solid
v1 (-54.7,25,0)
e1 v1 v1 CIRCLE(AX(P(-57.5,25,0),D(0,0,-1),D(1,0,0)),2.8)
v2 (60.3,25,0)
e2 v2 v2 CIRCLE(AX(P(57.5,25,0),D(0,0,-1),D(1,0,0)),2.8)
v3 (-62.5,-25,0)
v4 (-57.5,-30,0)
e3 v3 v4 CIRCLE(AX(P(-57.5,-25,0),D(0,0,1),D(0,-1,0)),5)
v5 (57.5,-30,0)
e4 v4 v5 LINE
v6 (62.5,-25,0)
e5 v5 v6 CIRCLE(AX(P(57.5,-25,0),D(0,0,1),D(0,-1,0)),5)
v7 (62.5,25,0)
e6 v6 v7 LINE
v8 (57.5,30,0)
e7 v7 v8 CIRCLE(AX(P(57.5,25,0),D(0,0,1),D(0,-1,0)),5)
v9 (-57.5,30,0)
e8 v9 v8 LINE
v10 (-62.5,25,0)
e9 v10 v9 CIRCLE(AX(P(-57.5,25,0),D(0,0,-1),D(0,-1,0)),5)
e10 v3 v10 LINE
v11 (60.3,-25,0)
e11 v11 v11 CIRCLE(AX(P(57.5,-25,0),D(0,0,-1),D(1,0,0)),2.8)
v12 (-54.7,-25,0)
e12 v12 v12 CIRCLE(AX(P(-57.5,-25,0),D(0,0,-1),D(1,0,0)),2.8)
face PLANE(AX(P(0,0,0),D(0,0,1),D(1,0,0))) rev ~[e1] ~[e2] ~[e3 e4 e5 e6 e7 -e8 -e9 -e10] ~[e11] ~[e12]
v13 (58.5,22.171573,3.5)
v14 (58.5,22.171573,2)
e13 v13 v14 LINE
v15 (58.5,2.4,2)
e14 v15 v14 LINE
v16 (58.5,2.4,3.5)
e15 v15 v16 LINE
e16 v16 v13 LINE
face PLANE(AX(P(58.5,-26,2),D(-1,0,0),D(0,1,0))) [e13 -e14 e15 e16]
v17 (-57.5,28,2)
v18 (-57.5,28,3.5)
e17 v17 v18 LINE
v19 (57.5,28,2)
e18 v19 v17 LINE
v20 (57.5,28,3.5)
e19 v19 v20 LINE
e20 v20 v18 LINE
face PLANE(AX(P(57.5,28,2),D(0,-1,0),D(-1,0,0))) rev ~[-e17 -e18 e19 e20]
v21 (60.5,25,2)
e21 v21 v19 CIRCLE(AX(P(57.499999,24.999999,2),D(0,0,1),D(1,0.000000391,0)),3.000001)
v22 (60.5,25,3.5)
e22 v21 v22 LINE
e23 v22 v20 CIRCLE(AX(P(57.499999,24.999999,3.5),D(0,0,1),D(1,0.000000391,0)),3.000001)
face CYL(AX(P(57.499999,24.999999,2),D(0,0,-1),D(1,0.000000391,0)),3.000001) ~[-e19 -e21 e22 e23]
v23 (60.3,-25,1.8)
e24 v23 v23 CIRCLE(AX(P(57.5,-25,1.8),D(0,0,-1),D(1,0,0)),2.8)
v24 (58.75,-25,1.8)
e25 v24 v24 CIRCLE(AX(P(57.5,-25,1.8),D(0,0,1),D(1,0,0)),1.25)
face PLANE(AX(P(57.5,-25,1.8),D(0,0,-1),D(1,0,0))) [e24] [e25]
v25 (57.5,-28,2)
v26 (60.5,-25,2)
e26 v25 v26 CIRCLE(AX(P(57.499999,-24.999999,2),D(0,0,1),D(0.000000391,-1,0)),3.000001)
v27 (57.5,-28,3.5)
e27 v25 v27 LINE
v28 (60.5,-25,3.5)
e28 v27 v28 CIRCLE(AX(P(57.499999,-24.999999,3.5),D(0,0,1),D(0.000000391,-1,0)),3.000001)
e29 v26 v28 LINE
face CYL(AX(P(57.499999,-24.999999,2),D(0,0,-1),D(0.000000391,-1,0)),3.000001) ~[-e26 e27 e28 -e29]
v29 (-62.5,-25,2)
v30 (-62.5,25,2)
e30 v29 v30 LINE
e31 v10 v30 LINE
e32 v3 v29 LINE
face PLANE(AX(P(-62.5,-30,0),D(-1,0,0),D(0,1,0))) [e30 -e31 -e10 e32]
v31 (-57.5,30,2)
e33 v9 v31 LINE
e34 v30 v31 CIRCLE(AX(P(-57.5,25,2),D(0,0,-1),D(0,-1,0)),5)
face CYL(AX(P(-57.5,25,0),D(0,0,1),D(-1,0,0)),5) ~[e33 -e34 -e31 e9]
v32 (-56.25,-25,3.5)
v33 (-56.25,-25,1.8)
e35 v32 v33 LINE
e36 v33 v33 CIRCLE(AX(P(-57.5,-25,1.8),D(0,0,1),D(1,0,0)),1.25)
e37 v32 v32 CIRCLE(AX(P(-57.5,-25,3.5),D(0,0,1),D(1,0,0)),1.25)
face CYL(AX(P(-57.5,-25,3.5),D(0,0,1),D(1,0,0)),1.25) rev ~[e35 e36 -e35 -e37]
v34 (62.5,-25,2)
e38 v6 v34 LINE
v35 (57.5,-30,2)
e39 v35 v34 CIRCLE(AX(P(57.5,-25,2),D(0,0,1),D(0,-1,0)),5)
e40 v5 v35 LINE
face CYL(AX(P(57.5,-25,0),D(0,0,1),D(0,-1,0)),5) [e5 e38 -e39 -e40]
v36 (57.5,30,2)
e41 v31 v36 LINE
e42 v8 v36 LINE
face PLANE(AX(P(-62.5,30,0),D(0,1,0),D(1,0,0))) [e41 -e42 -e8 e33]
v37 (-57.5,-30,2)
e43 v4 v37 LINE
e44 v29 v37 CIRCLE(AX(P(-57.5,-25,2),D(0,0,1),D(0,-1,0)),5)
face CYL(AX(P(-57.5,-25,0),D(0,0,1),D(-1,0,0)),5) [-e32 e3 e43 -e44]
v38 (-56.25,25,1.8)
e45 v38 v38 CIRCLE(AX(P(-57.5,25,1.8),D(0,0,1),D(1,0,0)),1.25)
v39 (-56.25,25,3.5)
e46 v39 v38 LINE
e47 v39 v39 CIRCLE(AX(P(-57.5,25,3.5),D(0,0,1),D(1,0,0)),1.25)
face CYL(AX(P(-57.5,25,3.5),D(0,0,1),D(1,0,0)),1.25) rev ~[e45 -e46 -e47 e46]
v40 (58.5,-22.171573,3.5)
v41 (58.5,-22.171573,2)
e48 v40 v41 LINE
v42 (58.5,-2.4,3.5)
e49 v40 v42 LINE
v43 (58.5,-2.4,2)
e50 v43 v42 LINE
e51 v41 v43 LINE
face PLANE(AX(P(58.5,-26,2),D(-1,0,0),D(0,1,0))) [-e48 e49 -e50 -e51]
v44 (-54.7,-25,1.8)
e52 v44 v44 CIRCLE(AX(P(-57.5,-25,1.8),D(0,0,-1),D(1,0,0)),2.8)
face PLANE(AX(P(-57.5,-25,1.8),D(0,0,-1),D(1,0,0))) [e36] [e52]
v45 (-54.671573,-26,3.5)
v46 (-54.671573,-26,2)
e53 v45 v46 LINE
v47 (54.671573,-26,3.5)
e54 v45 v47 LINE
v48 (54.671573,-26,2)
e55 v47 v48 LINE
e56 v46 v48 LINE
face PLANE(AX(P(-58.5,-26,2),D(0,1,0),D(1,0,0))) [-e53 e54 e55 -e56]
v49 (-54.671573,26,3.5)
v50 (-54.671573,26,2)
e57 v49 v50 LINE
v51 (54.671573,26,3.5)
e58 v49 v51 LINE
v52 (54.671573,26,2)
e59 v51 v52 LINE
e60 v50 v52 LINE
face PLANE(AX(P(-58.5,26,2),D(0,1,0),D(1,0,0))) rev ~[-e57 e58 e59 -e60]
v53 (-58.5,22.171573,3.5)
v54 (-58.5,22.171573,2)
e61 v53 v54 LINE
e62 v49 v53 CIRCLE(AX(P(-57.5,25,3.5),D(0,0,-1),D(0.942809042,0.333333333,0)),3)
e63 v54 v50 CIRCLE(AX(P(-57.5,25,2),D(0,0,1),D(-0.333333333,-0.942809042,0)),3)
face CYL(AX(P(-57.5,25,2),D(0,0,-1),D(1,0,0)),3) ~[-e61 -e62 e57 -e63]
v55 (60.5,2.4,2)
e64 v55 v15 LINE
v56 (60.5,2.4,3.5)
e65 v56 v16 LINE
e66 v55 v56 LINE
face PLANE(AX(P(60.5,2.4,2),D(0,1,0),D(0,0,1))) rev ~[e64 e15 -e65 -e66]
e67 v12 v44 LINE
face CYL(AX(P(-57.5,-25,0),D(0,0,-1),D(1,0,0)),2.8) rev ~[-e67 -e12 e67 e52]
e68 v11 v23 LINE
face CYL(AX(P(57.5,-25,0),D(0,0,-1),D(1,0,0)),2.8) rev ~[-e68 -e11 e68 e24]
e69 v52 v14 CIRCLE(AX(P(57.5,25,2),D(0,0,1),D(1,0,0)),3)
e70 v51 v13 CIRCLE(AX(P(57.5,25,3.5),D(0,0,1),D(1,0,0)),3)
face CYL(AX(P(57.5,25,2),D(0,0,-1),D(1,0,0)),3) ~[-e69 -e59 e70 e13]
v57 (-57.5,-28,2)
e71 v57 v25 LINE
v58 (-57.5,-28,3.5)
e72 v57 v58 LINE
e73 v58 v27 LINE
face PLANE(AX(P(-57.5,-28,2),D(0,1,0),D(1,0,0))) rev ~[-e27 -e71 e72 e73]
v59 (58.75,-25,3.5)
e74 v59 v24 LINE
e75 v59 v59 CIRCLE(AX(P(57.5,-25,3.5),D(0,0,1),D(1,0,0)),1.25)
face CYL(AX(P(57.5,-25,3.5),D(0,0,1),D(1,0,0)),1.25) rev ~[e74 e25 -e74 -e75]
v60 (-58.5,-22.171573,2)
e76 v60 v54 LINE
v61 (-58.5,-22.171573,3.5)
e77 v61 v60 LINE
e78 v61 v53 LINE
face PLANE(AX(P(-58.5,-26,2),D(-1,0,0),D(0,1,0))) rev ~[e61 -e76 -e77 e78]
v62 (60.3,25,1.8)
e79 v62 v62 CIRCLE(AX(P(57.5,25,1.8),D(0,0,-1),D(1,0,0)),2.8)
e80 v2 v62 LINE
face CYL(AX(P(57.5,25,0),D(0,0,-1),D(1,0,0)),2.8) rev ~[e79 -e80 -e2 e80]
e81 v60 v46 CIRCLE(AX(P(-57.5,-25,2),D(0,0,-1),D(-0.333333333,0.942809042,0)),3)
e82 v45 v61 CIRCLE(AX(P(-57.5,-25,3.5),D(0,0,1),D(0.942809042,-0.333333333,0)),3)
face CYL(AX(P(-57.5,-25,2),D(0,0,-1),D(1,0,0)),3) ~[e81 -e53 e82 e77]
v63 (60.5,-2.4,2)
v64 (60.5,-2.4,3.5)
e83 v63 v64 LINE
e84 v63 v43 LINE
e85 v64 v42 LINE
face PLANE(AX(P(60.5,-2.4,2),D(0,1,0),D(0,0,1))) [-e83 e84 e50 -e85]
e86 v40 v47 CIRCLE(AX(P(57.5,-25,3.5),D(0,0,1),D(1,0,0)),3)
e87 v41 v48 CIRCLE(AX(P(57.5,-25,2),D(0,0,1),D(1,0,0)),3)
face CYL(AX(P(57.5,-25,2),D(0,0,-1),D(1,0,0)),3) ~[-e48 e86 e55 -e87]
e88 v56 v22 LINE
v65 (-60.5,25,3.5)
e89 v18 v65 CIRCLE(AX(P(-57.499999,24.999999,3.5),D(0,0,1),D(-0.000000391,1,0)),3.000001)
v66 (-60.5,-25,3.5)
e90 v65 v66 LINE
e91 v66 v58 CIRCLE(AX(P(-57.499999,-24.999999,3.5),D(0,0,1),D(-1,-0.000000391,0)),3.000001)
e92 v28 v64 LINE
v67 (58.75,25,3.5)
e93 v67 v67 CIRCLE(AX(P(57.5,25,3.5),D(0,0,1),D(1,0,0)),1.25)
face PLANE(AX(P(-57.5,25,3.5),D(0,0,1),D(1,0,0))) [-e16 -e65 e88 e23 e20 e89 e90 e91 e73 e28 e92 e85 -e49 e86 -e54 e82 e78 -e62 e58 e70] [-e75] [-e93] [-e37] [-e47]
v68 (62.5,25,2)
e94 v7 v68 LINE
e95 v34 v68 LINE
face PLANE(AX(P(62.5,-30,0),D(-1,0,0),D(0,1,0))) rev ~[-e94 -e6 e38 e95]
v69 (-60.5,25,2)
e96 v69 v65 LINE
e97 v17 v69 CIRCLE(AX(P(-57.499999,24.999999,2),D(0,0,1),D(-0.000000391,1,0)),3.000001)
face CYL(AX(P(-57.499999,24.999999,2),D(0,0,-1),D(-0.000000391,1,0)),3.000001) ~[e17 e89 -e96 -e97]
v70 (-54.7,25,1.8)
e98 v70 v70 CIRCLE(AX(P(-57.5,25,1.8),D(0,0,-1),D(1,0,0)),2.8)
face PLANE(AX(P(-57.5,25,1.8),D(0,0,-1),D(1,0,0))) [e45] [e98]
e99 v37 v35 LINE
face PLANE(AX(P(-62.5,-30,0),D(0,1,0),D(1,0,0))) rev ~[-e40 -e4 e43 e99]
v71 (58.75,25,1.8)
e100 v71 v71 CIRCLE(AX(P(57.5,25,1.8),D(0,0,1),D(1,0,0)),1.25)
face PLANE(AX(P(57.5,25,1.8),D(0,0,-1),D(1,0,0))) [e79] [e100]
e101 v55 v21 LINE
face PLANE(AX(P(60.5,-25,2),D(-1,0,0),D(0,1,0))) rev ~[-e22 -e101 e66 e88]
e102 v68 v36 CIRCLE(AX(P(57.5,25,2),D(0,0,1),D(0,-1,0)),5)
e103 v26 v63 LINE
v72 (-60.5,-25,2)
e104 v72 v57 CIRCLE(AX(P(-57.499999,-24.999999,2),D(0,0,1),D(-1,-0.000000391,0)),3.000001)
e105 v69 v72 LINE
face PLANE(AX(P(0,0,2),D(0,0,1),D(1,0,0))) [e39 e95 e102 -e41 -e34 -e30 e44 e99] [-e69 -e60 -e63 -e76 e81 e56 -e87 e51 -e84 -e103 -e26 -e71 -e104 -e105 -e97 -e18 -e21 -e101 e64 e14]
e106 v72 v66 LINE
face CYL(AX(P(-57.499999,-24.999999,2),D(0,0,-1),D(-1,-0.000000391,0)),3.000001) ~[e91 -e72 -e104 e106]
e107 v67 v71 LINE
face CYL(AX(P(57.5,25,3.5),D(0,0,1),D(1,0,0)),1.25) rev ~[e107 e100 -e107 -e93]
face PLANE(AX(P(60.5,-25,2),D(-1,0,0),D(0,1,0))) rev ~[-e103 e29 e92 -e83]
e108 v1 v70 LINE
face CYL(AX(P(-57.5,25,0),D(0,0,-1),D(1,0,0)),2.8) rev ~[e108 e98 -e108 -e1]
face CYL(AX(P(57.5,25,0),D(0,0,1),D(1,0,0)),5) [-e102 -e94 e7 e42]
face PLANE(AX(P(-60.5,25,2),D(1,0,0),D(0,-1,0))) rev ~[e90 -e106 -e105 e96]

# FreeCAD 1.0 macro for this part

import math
import FreeCAD as App
import Part
import Sketcher
from FreeCAD import Vector
Q = App.Units.Quantity


def edges_at(feature, points):
    """Names of the edges that pass closest to the given points."""
    edges = feature.Shape.Edges
    near = lambda p: min(range(len(edges)), key=lambda i: edges[i].distToShape(Part.Vertex(*p))[0])
    return sorted({f"Edge{near(p) + 1}" for p in points})


def faces_at(feature, points):
    """Names of the faces that lie closest to the given points."""
    faces = feature.Shape.Faces
    near = lambda p: min(range(len(faces)), key=lambda i: faces[i].distToShape(Part.Vertex(*p))[0])
    return sorted({f"Face{near(p) + 1}" for p in points})

doc = App.newDocument("Part")
params = doc.addObject("Spreadsheet::Sheet", "Params")
for row, (alias, value) in enumerate([
    ("sketch1_width", "125 mm"),
    ("sketch1_height", "60 mm"),
    ("pad1_length", "2 mm"),
    ("thickness_wall", "2 mm"),
    ("fillet_radius", "5 mm"),
    ("sketch2_diameter", "2.5 mm"),
    ("pocket1_length", "10 mm"),
    ("sketch3_radius", "3.000001 mm"),
    ("sketch3_width", "115 mm"),
    ("sketch3_width2", "117 mm"),
    ("sketch3_height", "50 mm"),
    ("sketch3_height2", "52 mm"),
    ("pad2_length", "1.5 mm"),
    ("sketch4_diameter", "6 mm"),
    ("pad3_length", "1.5 mm"),
    ("sketch5_diameter", "2.5 mm"),
    ("sketch6_diameter", "5.6 mm"),
    ("pocket3_length", "1.8 mm"),
    ("sketch7_width", "4.8 mm"),
    ("sketch7_height", "1.5 mm"),
    ("pocket4_length", "2 mm"),
], start=1):
    params.set(f"A{row}", alias)
    params.set(f"B{row}", "=" + value)
    params.setAlias(f"B{row}", alias)

body = doc.addObject("PartDesign::Body", "Body")

# Sketch on XY plane
sketch1 = doc.addObject("Sketcher::SketchObject", "Sketch")
body.addObject(sketch1)
sketch1.AttachmentSupport = (doc.XY_Plane, [""])
sketch1.MapMode = "FlatFace"
sketch1.addGeometry([
    Part.LineSegment(Vector(-62, 30, 0), Vector(-62, -30, 0)),
    Part.LineSegment(Vector(-62, -30, 0), Vector(62, -30, 0)),
    Part.LineSegment(Vector(62, -30, 0), Vector(62, 30, 0)),
    Part.LineSegment(Vector(62, 30, 0), Vector(-62, 30, 0)),
], False)
sketch1.addConstraint([
    Sketcher.Constraint("Coincident", 0, 2, 1, 1),
    Sketcher.Constraint("Coincident", 1, 2, 2, 1),
    Sketcher.Constraint("Coincident", 2, 2, 3, 1),
    Sketcher.Constraint("Coincident", 3, 2, 0, 1),
    Sketcher.Constraint("Vertical", 0),
    Sketcher.Constraint("Horizontal", 1),
    Sketcher.Constraint("Vertical", 2),
    Sketcher.Constraint("Horizontal", 3),
    Sketcher.Constraint("Symmetric", 0, 2, 2, 2, -1, 1),
    Sketcher.Constraint("DistanceX", 1, 1, 1, 2, Q("125 mm")),
    Sketcher.Constraint("DistanceY", 0, 2, 0, 1, Q("60 mm")),
])
sketch1.setExpression("Constraints[9]", "Params.sketch1_width")
sketch1.setExpression("Constraints[10]", "Params.sketch1_height")
pad1 = doc.addObject("PartDesign::Pad", "Pad")
body.addObject(pad1)
pad1.Profile = sketch1
pad1.setExpression("Length", "Params.pad1_length")
doc.recompute()

thickness = doc.addObject("PartDesign::Thickness", "Thickness")
body.addObject(thickness)
thickness.Base = (pad1, faces_at(pad1, [(0, 0, 2)]))
thickness.setExpression("Value", "Params.thickness_wall")
thickness.Reversed = True
thickness.Join = "Arc"
doc.recompute()

fillet = doc.addObject("PartDesign::Fillet", "Fillet")
body.addObject(fillet)
fillet.Base = (thickness, edges_at(thickness, [
    (62.5, -30, 1),
    (62.5, 30, 1),
    (-62.5, 30, 1),
    (-62.5, -30, 1),
]))
fillet.setExpression("Radius", "Params.fillet_radius")

# Sketch on XY plane
sketch2 = doc.addObject("Sketcher::SketchObject", "Sketch001")
body.addObject(sketch2)
sketch2.AttachmentSupport = (doc.XY_Plane, [""])
sketch2.MapMode = "FlatFace"
sketch2.AttachmentOffset = App.Placement(Vector(0, 0, 2), App.Rotation())
sketch2.addGeometry([
    Part.Circle(Vector(-57.5, 25, 0), Vector(0, 0, 1), 1.2),
    Part.Circle(Vector(-57.5, -25, 0), Vector(0, 0, 1), 1.2),
    Part.Circle(Vector(57.5, 25, 0), Vector(0, 0, 1), 1.2),
    Part.Circle(Vector(57.5, -25, 0), Vector(0, 0, 1), 1.2),
], False)
sketch2.addConstraint([
    Sketcher.Constraint("Equal", 0, 1),
    Sketcher.Constraint("Equal", 1, 2),
    Sketcher.Constraint("Equal", 2, 3),
    Sketcher.Constraint("Symmetric", 1, 3, 2, 3, -1, 1),
    Sketcher.Constraint("Symmetric", 0, 3, 3, 3, -1, 1),
    Sketcher.Constraint("Symmetric", 0, 3, 2, 3, -2),
    Sketcher.Constraint("Diameter", 0, Q("2.5 mm")),
    Sketcher.Constraint("DistanceY", -1, 1, 0, 3, Q("25 mm")),
    Sketcher.Constraint("DistanceX", 0, 3, 2, 3, Q("115 mm")),
])
sketch2.setExpression("Constraints[6]", "Params.sketch2_diameter")
pocket1 = doc.addObject("PartDesign::Pocket", "Pocket")
body.addObject(pocket1)
pocket1.Profile = sketch2
pocket1.setExpression("Length", "Params.pocket1_length")
pocket1.Reversed = True

# Sketch on XY plane
sketch3 = doc.addObject("Sketcher::SketchObject", "Sketch002")
body.addObject(sketch3)
sketch3.AttachmentSupport = (doc.XY_Plane, [""])
sketch3.MapMode = "FlatFace"
sketch3.AttachmentOffset = App.Placement(Vector(0, 0, 2), App.Rotation())
sketch3.addGeometry([
    Part.ArcOfCircle(Part.Circle(Vector(57.5, 25, 0), Vector(0, 0, 1), 3), math.radians(0), math.radians(90)),  # 0
    Part.LineSegment(Vector(57.5, 28, 0), Vector(-57.5, 28, 0)),  # 1
    Part.ArcOfCircle(Part.Circle(Vector(-57.5, 25, 0), Vector(0, 0, 1), 3), math.radians(90), math.radians(180)),  # 2
    Part.LineSegment(Vector(-60.5, 25, 0), Vector(-60.5, -25, 0)),  # 3
    Part.ArcOfCircle(Part.Circle(Vector(-57.5, -25, 0), Vector(0, 0, 1), 3), math.radians(-180), math.radians(-90)),  # 4
    Part.LineSegment(Vector(-57.5, -28, 0), Vector(57.5, -28, 0)),  # 5
    Part.ArcOfCircle(Part.Circle(Vector(57.5, -25, 0), Vector(0, 0, 1), 3), math.radians(-90), math.radians(0)),  # 6
    Part.LineSegment(Vector(60.5, -25, 0), Vector(60.5, 25, 0)),  # 7
    Part.LineSegment(Vector(58.5, -26, 0), Vector(-58.5, -26, 0)),  # 8
    Part.LineSegment(Vector(-58.5, -26, 0), Vector(-58.5, 26, 0)),  # 9
    Part.LineSegment(Vector(-58.5, 26, 0), Vector(58.5, 26, 0)),  # 10
    Part.LineSegment(Vector(58.5, 26, 0), Vector(58.5, -26, 0)),  # 11
], False)
sketch3.addConstraint([
    Sketcher.Constraint("Tangent", 0, 2, 1, 1),
    Sketcher.Constraint("Tangent", 1, 2, 2, 1),
    Sketcher.Constraint("Tangent", 2, 2, 3, 1),
    Sketcher.Constraint("Tangent", 3, 2, 4, 1),
    Sketcher.Constraint("Tangent", 4, 2, 5, 1),
    Sketcher.Constraint("Tangent", 5, 2, 6, 1),
    Sketcher.Constraint("Tangent", 6, 2, 7, 1),
    Sketcher.Constraint("Tangent", 7, 2, 0, 1),
    Sketcher.Constraint("Coincident", 8, 2, 9, 1),
    Sketcher.Constraint("Coincident", 9, 2, 10, 1),
    Sketcher.Constraint("Coincident", 10, 2, 11, 1),
    Sketcher.Constraint("Coincident", 11, 2, 8, 1),
    Sketcher.Constraint("Horizontal", 1),
    Sketcher.Constraint("Vertical", 3),
    Sketcher.Constraint("Horizontal", 5),
    Sketcher.Constraint("Vertical", 7),
    Sketcher.Constraint("Horizontal", 8),
    Sketcher.Constraint("Vertical", 9),
    Sketcher.Constraint("Horizontal", 10),
    Sketcher.Constraint("Vertical", 11),
    Sketcher.Constraint("Equal", 0, 2),
    Sketcher.Constraint("Equal", 2, 4),
    Sketcher.Constraint("Equal", 4, 6),
    Sketcher.Constraint("Symmetric", 0, 3, 4, 3, -1, 1),
    Sketcher.Constraint("Symmetric", 8, 2, 10, 2, -1, 1),
    Sketcher.Constraint("Radius", 0, Q("3.000001 mm")),
    Sketcher.Constraint("DistanceX", 1, 2, 1, 1, Q("115 mm")),
    Sketcher.Constraint("DistanceX", 8, 2, 8, 1, Q("117 mm")),
    Sketcher.Constraint("DistanceY", 3, 2, 3, 1, Q("50 mm")),
    Sketcher.Constraint("DistanceY", 9, 1, 9, 2, Q("52 mm")),
])
sketch3.setExpression("Constraints[25]", "Params.sketch3_radius")
sketch3.setExpression("Constraints[26]", "Params.sketch3_width")
sketch3.setExpression("Constraints[27]", "Params.sketch3_width2")
sketch3.setExpression("Constraints[28]", "Params.sketch3_height")
sketch3.setExpression("Constraints[29]", "Params.sketch3_height2")
pad2 = doc.addObject("PartDesign::Pad", "Pad001")
body.addObject(pad2)
pad2.Profile = sketch3
pad2.setExpression("Length", "Params.pad2_length")

# Sketch on XY plane
sketch4 = doc.addObject("Sketcher::SketchObject", "Sketch003")
body.addObject(sketch4)
sketch4.AttachmentSupport = (doc.XY_Plane, [""])
sketch4.MapMode = "FlatFace"
sketch4.AttachmentOffset = App.Placement(Vector(0, 0, 2), App.Rotation())
sketch4.addGeometry([
    Part.Circle(Vector(-57.5, 25, 0), Vector(0, 0, 1), 3),
    Part.Circle(Vector(-57.5, -25, 0), Vector(0, 0, 1), 3),
    Part.Circle(Vector(57.5, -25, 0), Vector(0, 0, 1), 3),
    Part.Circle(Vector(57.5, 25, 0), Vector(0, 0, 1), 3),
], False)
sketch4.addConstraint([
    Sketcher.Constraint("Equal", 0, 1),
    Sketcher.Constraint("Equal", 1, 2),
    Sketcher.Constraint("Equal", 2, 3),
    Sketcher.Constraint("Symmetric", 0, 3, 2, 3, -1, 1),
    Sketcher.Constraint("Symmetric", 1, 3, 3, 3, -1, 1),
    Sketcher.Constraint("Symmetric", 1, 3, 2, 3, -2),
    Sketcher.Constraint("Diameter", 0, Q("6 mm")),
    Sketcher.Constraint("DistanceY", -1, 1, 0, 3, Q("25 mm")),
    Sketcher.Constraint("DistanceX", 1, 3, 2, 3, Q("115 mm")),
])
sketch4.setExpression("Constraints[6]", "Params.sketch4_diameter")
pad3 = doc.addObject("PartDesign::Pad", "Pad002")
body.addObject(pad3)
pad3.Profile = sketch4
pad3.setExpression("Length", "Params.pad3_length")

# Sketch on XY plane
sketch5 = doc.addObject("Sketcher::SketchObject", "Sketch004")
body.addObject(sketch5)
sketch5.AttachmentSupport = (doc.XY_Plane, [""])
sketch5.MapMode = "FlatFace"
sketch5.AttachmentOffset = App.Placement(Vector(0, 0, 3.5), App.Rotation())
sketch5.addGeometry([
    Part.Circle(Vector(57.5, -25, 0), Vector(0, 0, 1), 1.2),
    Part.Circle(Vector(57.5, 25, 0), Vector(0, 0, 1), 1.2),
    Part.Circle(Vector(-57.5, 25, 0), Vector(0, 0, 1), 1.2),
    Part.Circle(Vector(-57.5, -25, 0), Vector(0, 0, 1), 1.2),
], False)
sketch5.addConstraint([
    Sketcher.Constraint("Equal", 0, 1),
    Sketcher.Constraint("Equal", 1, 2),
    Sketcher.Constraint("Equal", 2, 3),
    Sketcher.Constraint("Symmetric", 0, 3, 2, 3, -1, 1),
    Sketcher.Constraint("Symmetric", 1, 3, 3, 3, -1, 1),
    Sketcher.Constraint("Symmetric", 1, 3, 2, 3, -2),
    Sketcher.Constraint("Diameter", 0, Q("2.5 mm")),
    Sketcher.Constraint("DistanceY", 0, 3, -1, 1, Q("25 mm")),
    Sketcher.Constraint("DistanceX", 2, 3, 1, 3, Q("115 mm")),
])
sketch5.setExpression("Constraints[6]", "Params.sketch5_diameter")
pocket2 = doc.addObject("PartDesign::Pocket", "Pocket001")
body.addObject(pocket2)
pocket2.Profile = sketch5
pocket2.Type = "ThroughAll"

# Sketch on XY plane
sketch6 = doc.addObject("Sketcher::SketchObject", "Sketch005")
body.addObject(sketch6)
sketch6.AttachmentSupport = (doc.XY_Plane, [""])
sketch6.MapMode = "FlatFace"
sketch6.addGeometry([
    Part.Circle(Vector(-57.5, -25, 0), Vector(0, 0, 1), 2.8),
    Part.Circle(Vector(57.5, -25, 0), Vector(0, 0, 1), 2.8),
    Part.Circle(Vector(-57.5, 25, 0), Vector(0, 0, 1), 2.8),
    Part.Circle(Vector(57.5, 25, 0), Vector(0, 0, 1), 2.8),
], False)
sketch6.addConstraint([
    Sketcher.Constraint("Equal", 0, 1),
    Sketcher.Constraint("Equal", 1, 2),
    Sketcher.Constraint("Equal", 2, 3),
    Sketcher.Constraint("Symmetric", 1, 3, 2, 3, -1, 1),
    Sketcher.Constraint("Symmetric", 0, 3, 3, 3, -1, 1),
    Sketcher.Constraint("Symmetric", 0, 3, 1, 3, -2),
    Sketcher.Constraint("Diameter", 0, Q("5.6 mm")),
    Sketcher.Constraint("DistanceY", 0, 3, -1, 1, Q("25 mm")),
    Sketcher.Constraint("DistanceX", 0, 3, 1, 3, Q("115 mm")),
])
sketch6.setExpression("Constraints[6]", "Params.sketch6_diameter")
pocket3 = doc.addObject("PartDesign::Pocket", "Pocket002")
body.addObject(pocket3)
pocket3.Profile = sketch6
pocket3.setExpression("Length", "Params.pocket3_length")
pocket3.Reversed = True

# Sketch on YZ plane
sketch7 = doc.addObject("Sketcher::SketchObject", "Sketch006")
body.addObject(sketch7)
sketch7.AttachmentSupport = (doc.YZ_Plane, [""])
sketch7.MapMode = "FlatFace"
sketch7.AttachmentOffset = App.Placement(Vector(0, 0, 60.5), App.Rotation())
sketch7.addGeometry([
    Part.LineSegment(Vector(-2.4, 3.5, 0), Vector(-2.4, 2, 0)),
    Part.LineSegment(Vector(-2.4, 2, 0), Vector(2.4, 2, 0)),
    Part.LineSegment(Vector(2.4, 2, 0), Vector(2.4, 3.5, 0)),
    Part.LineSegment(Vector(2.4, 3.5, 0), Vector(-2.4, 3.5, 0)),
], False)
sketch7.addConstraint([
    Sketcher.Constraint("Coincident", 0, 2, 1, 1),
    Sketcher.Constraint("Coincident", 1, 2, 2, 1),
    Sketcher.Constraint("Coincident", 2, 2, 3, 1),
    Sketcher.Constraint("Coincident", 3, 2, 0, 1),
    Sketcher.Constraint("Vertical", 0),
    Sketcher.Constraint("Horizontal", 1),
    Sketcher.Constraint("Vertical", 2),
    Sketcher.Constraint("Horizontal", 3),
    Sketcher.Constraint("DistanceX", 1, 1, 1, 2, Q("4.8 mm")),
    Sketcher.Constraint("DistanceY", 0, 2, 0, 1, Q("1.5 mm")),
    Sketcher.Constraint("DistanceY", -1, 1, 0, 2, Q("2 mm")),
    Sketcher.Constraint("DistanceX", 0, 2, -1, 1, Q("2.4 mm")),
])
sketch7.setExpression("Constraints[8]", "Params.sketch7_width")
sketch7.setExpression("Constraints[9]", "Params.sketch7_height")
pocket4 = doc.addObject("PartDesign::Pocket", "Pocket003")
body.addObject(pocket4)
pocket4.Profile = sketch7
pocket4.setExpression("Length", "Params.pocket4_length")

doc.recompute()
